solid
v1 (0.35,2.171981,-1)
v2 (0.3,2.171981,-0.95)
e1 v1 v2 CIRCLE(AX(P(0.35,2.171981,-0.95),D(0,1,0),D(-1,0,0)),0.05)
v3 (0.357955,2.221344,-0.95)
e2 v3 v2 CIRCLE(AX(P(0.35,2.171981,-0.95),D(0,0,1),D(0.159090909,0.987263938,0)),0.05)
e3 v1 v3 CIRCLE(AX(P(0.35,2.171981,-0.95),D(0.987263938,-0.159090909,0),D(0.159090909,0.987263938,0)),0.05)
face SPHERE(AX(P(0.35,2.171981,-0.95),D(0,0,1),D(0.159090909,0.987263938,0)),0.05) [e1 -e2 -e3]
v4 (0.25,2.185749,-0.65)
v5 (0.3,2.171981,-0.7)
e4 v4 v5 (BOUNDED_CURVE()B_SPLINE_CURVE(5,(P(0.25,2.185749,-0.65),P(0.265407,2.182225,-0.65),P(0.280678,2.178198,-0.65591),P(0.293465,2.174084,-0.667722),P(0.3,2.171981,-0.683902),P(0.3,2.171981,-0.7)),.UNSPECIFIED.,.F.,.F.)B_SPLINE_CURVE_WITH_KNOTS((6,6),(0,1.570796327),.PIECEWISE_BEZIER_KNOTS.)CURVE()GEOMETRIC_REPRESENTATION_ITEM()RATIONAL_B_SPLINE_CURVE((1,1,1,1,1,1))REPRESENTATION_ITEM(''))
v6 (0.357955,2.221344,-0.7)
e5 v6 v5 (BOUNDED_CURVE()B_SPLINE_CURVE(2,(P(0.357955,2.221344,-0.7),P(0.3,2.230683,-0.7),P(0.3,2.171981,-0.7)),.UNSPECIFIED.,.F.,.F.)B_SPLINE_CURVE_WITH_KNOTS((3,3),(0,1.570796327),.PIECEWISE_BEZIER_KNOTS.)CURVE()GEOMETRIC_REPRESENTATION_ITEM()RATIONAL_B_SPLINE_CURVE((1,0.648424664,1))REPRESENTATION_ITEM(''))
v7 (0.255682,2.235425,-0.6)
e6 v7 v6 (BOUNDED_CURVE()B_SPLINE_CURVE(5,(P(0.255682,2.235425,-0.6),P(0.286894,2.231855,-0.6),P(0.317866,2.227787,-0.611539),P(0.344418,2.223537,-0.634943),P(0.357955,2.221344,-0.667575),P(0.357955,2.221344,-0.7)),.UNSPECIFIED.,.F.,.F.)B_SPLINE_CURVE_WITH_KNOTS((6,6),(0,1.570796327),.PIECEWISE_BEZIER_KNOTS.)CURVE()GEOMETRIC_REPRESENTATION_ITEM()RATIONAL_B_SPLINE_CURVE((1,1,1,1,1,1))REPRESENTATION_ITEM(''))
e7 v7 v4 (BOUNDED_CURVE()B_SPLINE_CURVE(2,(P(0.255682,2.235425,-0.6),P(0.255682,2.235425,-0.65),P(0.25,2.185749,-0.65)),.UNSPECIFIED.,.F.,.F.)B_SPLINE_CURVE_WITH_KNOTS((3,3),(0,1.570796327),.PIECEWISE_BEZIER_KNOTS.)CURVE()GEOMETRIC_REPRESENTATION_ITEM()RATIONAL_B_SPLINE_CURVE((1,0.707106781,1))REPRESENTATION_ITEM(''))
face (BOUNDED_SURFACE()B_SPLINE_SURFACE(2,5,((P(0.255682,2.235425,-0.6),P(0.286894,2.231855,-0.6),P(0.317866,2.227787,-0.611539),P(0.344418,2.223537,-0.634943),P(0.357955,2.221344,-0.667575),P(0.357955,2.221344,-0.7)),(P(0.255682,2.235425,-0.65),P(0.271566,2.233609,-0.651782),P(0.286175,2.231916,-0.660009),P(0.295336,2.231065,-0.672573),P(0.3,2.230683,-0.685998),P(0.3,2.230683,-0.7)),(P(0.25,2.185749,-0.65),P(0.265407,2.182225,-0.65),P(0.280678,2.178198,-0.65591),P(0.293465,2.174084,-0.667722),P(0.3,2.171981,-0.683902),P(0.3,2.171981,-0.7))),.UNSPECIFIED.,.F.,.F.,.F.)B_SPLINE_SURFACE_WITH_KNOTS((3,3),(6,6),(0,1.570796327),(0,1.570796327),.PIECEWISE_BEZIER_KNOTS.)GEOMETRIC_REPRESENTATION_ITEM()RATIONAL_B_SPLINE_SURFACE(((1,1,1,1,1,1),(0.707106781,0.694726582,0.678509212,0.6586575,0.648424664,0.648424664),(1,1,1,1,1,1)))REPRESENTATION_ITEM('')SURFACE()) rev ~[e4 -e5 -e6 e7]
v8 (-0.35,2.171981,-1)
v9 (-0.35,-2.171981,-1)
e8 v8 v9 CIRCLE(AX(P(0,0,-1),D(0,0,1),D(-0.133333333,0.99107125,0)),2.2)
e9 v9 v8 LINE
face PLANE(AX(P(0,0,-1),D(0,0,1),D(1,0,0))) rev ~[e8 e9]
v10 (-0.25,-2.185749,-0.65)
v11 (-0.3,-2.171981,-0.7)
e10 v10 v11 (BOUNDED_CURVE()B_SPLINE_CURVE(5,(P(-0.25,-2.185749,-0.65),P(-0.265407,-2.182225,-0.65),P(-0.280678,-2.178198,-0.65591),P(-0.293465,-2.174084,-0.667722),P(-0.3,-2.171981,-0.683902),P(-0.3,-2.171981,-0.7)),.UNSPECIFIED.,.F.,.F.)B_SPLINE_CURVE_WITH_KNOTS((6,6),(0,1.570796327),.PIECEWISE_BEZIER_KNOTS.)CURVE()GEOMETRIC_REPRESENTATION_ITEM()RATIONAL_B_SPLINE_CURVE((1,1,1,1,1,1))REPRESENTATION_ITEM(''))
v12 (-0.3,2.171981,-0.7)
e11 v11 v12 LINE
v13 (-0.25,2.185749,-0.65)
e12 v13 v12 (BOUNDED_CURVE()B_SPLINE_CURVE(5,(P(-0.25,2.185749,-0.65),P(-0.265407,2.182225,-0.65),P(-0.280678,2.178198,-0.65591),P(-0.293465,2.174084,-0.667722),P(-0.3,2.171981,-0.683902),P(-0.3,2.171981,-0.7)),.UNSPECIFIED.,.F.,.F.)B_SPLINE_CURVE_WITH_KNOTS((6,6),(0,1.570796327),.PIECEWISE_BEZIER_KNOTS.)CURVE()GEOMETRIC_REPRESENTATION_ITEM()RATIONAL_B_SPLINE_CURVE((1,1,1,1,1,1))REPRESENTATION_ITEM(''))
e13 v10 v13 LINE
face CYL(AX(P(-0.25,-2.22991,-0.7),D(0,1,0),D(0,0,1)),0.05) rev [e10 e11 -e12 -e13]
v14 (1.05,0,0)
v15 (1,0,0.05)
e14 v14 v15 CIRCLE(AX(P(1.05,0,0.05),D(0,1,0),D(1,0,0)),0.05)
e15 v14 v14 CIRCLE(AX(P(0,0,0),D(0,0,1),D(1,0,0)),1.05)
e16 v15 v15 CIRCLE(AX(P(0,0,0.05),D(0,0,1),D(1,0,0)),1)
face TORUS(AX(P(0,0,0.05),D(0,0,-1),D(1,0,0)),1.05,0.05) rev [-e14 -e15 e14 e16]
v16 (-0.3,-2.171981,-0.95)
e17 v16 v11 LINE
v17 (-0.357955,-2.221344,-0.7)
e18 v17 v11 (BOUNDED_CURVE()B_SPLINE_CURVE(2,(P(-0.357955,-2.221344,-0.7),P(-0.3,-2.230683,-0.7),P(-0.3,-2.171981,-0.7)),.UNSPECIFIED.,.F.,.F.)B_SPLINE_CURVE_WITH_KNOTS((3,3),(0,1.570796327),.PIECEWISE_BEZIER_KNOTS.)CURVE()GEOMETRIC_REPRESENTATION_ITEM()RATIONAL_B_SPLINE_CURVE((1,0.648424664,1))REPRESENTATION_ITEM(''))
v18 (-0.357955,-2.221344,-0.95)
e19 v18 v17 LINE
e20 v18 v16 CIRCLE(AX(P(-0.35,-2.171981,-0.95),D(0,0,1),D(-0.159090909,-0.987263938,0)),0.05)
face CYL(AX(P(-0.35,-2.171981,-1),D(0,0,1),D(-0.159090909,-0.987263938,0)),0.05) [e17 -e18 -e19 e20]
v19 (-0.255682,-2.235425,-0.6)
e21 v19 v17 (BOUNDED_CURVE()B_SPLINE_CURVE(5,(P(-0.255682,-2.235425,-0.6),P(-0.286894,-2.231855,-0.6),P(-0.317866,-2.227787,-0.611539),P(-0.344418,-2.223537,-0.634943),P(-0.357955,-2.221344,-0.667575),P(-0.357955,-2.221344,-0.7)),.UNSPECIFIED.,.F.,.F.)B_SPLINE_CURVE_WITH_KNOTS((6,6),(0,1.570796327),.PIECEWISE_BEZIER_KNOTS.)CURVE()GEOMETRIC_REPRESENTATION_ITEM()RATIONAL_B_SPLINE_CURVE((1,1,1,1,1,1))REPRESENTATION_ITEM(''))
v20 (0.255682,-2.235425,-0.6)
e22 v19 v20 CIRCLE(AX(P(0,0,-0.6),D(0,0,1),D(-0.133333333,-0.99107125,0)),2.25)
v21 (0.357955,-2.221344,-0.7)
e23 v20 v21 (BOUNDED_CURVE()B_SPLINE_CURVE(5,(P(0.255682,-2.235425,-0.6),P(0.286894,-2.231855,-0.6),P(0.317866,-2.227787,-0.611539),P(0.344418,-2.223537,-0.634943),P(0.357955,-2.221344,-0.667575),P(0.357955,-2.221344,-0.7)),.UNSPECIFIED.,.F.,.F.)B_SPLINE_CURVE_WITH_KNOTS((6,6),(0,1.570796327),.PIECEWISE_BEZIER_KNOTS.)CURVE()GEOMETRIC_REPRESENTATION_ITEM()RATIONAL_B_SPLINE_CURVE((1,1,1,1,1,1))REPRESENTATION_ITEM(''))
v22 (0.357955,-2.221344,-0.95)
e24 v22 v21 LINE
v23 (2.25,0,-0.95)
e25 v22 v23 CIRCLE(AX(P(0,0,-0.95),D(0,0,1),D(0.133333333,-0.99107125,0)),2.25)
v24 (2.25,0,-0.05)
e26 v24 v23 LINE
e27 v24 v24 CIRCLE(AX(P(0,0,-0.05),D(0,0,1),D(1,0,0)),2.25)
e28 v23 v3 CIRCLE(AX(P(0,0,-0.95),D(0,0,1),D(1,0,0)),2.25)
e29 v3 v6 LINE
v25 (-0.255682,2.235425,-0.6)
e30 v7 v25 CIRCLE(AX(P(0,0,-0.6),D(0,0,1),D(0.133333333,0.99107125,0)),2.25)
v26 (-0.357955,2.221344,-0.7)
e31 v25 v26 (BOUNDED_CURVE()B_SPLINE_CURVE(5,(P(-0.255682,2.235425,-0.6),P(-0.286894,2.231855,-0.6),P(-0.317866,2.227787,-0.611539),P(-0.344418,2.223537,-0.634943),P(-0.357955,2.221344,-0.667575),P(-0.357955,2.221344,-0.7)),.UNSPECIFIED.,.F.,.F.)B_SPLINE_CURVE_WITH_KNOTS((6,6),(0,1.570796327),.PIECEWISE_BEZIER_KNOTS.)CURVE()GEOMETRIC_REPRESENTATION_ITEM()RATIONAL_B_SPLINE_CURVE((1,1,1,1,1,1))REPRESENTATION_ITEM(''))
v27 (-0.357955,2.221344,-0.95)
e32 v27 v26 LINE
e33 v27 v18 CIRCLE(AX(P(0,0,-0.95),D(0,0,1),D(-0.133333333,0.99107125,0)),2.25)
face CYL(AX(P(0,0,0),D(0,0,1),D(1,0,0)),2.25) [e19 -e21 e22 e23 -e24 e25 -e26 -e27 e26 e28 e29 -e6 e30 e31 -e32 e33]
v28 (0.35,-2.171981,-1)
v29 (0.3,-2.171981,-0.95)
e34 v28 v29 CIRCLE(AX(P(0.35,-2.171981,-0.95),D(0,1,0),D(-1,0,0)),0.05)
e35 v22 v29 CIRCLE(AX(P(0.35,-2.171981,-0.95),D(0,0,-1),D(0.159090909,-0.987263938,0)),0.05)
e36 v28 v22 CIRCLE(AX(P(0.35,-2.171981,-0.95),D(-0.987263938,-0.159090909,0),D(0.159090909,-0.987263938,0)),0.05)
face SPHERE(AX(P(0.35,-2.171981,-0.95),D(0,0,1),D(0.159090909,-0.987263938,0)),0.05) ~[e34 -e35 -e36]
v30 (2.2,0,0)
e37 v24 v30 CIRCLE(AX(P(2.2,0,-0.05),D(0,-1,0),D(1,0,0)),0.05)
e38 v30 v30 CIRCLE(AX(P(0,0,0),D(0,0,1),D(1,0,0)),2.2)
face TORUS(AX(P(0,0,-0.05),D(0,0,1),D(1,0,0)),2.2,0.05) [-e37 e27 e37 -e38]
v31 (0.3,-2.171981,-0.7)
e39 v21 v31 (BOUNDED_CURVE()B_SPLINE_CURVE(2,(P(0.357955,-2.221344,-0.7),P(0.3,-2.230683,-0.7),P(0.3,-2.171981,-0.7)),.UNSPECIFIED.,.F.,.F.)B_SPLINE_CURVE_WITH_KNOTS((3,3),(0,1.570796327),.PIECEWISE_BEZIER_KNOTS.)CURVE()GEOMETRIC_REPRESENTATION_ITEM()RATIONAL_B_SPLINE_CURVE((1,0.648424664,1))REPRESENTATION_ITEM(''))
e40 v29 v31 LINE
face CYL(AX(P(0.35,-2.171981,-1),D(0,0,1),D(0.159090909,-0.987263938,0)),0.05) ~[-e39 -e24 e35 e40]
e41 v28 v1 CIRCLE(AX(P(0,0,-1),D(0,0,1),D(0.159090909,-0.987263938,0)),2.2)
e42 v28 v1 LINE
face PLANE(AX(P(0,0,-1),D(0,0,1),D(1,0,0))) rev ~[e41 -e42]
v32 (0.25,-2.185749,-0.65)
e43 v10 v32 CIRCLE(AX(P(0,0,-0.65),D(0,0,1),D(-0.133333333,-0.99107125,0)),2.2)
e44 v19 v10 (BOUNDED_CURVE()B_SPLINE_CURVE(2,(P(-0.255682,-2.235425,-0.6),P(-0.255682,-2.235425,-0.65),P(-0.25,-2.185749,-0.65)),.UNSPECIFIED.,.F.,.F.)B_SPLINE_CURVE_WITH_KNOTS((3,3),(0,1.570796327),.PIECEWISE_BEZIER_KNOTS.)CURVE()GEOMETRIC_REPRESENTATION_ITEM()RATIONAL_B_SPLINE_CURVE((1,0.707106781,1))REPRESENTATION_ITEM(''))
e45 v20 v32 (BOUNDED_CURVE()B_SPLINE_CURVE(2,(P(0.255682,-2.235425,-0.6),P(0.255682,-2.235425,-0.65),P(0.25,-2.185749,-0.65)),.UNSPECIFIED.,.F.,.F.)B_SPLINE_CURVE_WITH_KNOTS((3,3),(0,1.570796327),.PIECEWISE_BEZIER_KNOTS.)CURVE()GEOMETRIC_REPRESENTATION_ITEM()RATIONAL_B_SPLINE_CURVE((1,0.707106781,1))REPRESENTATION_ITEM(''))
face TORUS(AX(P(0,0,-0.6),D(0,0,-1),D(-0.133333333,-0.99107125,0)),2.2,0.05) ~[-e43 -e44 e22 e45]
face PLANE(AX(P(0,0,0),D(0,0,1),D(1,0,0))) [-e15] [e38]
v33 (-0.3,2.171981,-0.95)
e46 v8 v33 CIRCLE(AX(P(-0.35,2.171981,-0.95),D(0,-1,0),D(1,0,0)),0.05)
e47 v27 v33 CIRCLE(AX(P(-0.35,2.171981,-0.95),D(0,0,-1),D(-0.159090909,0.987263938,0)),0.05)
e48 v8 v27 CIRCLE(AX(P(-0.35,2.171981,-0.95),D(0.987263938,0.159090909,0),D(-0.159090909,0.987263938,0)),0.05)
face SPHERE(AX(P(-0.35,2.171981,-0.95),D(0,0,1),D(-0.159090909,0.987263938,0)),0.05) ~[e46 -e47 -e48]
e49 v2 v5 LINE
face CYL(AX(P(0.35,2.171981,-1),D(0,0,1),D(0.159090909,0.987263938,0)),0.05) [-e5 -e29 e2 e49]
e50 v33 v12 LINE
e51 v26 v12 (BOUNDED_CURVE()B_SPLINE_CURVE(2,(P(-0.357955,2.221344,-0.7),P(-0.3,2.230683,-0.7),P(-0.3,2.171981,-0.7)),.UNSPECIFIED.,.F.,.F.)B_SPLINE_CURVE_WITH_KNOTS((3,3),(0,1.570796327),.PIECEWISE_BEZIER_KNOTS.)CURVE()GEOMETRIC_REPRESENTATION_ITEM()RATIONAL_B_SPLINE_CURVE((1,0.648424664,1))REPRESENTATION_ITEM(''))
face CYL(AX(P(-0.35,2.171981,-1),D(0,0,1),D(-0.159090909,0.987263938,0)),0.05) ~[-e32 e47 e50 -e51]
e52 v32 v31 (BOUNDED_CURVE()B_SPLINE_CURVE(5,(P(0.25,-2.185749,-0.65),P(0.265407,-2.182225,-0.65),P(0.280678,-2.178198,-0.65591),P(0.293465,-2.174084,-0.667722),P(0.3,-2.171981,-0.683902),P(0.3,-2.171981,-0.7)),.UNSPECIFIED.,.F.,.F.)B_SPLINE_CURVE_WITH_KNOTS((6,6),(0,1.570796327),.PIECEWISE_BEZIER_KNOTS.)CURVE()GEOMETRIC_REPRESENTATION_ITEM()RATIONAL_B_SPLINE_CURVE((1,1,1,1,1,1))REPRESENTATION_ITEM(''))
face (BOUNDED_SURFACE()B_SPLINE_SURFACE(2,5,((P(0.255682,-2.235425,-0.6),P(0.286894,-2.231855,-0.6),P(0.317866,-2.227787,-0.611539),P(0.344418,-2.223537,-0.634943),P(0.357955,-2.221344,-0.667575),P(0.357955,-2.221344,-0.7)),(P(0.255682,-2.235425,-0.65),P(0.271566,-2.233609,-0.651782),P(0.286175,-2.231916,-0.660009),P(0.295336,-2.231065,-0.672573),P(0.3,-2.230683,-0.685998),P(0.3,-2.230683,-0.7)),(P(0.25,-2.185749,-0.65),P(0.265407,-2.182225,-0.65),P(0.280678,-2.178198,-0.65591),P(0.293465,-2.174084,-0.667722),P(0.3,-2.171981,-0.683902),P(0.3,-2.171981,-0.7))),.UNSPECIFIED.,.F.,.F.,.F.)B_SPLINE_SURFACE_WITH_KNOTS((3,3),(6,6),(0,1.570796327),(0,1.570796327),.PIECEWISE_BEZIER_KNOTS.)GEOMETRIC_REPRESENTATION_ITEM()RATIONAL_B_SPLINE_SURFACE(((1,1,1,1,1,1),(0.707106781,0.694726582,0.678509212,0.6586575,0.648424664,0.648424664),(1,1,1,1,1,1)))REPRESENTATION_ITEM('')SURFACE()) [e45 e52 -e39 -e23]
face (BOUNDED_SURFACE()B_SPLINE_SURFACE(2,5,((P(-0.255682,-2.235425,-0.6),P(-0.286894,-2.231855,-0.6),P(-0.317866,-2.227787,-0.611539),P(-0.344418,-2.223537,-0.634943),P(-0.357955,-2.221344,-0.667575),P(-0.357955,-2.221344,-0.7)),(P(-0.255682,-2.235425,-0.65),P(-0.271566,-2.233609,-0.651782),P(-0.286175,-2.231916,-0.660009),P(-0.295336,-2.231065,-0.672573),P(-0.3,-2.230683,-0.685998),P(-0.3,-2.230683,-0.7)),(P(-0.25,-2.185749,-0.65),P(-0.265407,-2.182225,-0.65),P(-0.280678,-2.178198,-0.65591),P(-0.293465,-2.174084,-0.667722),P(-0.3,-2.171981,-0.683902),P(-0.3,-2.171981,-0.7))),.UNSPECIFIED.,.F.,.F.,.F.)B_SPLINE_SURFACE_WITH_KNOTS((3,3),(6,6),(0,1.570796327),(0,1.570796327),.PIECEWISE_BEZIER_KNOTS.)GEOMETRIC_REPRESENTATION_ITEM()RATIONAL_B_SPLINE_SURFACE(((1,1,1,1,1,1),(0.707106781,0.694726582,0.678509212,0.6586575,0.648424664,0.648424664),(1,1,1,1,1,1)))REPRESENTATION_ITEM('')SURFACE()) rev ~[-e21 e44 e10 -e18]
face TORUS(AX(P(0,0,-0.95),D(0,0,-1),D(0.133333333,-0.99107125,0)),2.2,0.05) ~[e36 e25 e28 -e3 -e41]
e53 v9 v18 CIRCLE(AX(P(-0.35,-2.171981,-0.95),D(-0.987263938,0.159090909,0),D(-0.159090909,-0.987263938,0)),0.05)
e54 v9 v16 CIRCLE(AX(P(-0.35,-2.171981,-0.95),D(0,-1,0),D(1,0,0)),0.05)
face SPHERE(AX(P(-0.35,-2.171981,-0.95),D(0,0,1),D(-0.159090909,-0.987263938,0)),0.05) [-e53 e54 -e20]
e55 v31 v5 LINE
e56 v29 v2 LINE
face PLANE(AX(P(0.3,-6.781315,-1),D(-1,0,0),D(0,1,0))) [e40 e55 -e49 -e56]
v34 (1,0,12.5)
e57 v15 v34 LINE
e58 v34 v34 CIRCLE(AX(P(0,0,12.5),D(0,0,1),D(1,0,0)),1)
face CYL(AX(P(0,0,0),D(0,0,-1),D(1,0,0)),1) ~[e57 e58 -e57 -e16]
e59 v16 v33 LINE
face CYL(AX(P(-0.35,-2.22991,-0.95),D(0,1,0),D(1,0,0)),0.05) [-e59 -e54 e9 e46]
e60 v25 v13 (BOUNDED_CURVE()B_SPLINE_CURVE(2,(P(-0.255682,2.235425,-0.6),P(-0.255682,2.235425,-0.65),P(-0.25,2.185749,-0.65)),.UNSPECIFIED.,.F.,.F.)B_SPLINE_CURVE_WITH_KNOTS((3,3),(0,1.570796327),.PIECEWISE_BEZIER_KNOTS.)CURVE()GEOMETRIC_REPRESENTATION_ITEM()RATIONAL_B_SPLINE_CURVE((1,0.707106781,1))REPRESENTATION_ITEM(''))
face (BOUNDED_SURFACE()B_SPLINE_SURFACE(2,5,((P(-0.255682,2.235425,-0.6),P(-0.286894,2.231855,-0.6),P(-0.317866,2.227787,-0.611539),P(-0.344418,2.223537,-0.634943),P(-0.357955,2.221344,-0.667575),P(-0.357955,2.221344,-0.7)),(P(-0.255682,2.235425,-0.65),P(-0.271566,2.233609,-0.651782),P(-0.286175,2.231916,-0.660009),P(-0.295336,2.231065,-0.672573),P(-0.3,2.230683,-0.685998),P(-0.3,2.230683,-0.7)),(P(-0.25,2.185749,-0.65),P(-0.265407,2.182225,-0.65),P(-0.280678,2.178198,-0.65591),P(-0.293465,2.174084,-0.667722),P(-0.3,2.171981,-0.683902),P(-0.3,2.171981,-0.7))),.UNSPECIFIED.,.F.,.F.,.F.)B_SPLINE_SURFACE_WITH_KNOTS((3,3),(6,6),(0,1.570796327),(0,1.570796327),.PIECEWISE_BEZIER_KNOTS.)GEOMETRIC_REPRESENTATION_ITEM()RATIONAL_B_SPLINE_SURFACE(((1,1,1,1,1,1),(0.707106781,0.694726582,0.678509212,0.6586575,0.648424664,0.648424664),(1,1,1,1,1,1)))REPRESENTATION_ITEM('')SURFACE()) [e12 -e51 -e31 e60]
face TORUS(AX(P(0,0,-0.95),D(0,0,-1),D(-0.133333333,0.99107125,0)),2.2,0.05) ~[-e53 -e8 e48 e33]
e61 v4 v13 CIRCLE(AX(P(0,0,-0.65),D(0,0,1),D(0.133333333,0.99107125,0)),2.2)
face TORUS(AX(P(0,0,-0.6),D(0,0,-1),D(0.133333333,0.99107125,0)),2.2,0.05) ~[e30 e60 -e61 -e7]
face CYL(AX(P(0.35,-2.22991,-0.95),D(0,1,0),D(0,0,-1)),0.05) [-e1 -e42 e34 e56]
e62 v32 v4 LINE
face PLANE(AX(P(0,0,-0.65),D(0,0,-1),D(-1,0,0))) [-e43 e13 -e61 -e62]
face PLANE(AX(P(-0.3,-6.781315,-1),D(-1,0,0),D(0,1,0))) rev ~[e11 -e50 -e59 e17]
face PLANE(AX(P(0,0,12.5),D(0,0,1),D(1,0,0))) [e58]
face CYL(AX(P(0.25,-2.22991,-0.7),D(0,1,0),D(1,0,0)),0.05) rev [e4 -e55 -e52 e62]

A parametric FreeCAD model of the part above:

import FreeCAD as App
import Part
import Sketcher

V = App.Vector
Q = App.Units.Quantity


def edges_at(feature, points):
    """Names of the edges that pass closest to the given points."""
    edges = feature.Shape.Edges
    near = lambda p: min(range(len(edges)), key=lambda i: edges[i].distToShape(Part.Vertex(*p))[0])
    return sorted({f"Edge{near(p) + 1}" for p in points})

doc = App.newDocument("Part")
body = doc.addObject("PartDesign::Body", "Body")

# Sketch on XY plane
sketch1 = body.newObject("Sketcher::SketchObject", "Sketch")
sketch1.AttachmentSupport = (doc.getObject("XY_Plane"), [""])
sketch1.MapMode = "FlatFace"
sketch1.addGeometry(Part.Circle(V(0, 0, 0), V(0, 0, 1), 1), False)
sketch1.addConstraint(Sketcher.Constraint("Coincident", 0, 3, -1, 1))
sketch1.addConstraint(Sketcher.Constraint("Diameter", 0, Q("2 mm")))
pad1 = body.newObject("PartDesign::Pad", "Pad")
pad1.Profile = sketch1
pad1.Length = 12.5

# Sketch on XY plane
sketch2 = body.newObject("Sketcher::SketchObject", "Sketch001")
sketch2.AttachmentSupport = (doc.getObject("XY_Plane"), [""])
sketch2.MapMode = "FlatFace"
sketch2.addGeometry(Part.Circle(V(0, 0, 0), V(0, 0, 1), 2.2), False)
sketch2.addConstraint(Sketcher.Constraint("Coincident", 0, 3, -1, 1))
sketch2.addConstraint(Sketcher.Constraint("Diameter", 0, Q("4.5 mm")))
pad2 = body.newObject("PartDesign::Pad", "Pad001")
pad2.Profile = sketch2
pad2.Length = 1
pad2.Reversed = True

# Sketch on XY plane
sketch3 = body.newObject("Sketcher::SketchObject", "Sketch002")
sketch3.AttachmentSupport = (doc.getObject("XY_Plane"), [""])
sketch3.MapMode = "FlatFace"
sketch3.AttachmentOffset = App.Placement(V(0, 0, -1), App.Rotation())
sketch3.addGeometry(Part.LineSegment(V(0.3, 6.8, 0), V(0.3, -6.8, 0)), False)
sketch3.addGeometry(Part.LineSegment(V(0.3, -6.8, 0), V(-0.3, -6.8, 0)), False)
sketch3.addGeometry(Part.LineSegment(V(-0.3, -6.8, 0), V(-0.3, 6.8, 0)), False)
sketch3.addGeometry(Part.LineSegment(V(-0.3, 6.8, 0), V(0.3, 6.8, 0)), False)
sketch3.addConstraint(Sketcher.Constraint("Coincident", 0, 2, 1, 1))
sketch3.addConstraint(Sketcher.Constraint("Coincident", 1, 2, 2, 1))
sketch3.addConstraint(Sketcher.Constraint("Coincident", 2, 2, 3, 1))
sketch3.addConstraint(Sketcher.Constraint("Coincident", 3, 2, 0, 1))
sketch3.addConstraint(Sketcher.Constraint("Vertical", 0))
sketch3.addConstraint(Sketcher.Constraint("Horizontal", 1))
sketch3.addConstraint(Sketcher.Constraint("Vertical", 2))
sketch3.addConstraint(Sketcher.Constraint("Horizontal", 3))
sketch3.addConstraint(Sketcher.Constraint("Symmetric", 0, 2, 2, 2, -1, 1))
sketch3.addConstraint(Sketcher.Constraint("DistanceX", 1, 2, 1, 1, Q("0.6 mm")))
sketch3.addConstraint(Sketcher.Constraint("DistanceY", 0, 2, 0, 1, Q("13.56263 mm")))
pocket1 = body.newObject("PartDesign::Pocket", "Pocket")
pocket1.Profile = sketch3
pocket1.Length = 0.35
pocket1.Reversed = True
doc.recompute()

fillet = body.newObject("PartDesign::Fillet", "Fillet")
fillet.Base = (pocket1, edges_at(pocket1, [
    (1.694, 1.481, -1),
    (-0.3, 0, -1),
    (0.3, 0, -1),
    (0, 2.25, -0.65),
    (0, -2.25, -0.65),
    (0.3, 2.23, -0.825),
    (0.3, -2.23, -0.825),
    (-0.3, -2.23, -0.825),
    (-0.3, 2.23, -0.825),
    (0.3, 0, -0.65),
    (-0.3, 0, -0.65),
    (-2.25, 0, -1),
]))
fillet.Radius = 0.05
doc.recompute()

fillet2 = body.newObject("PartDesign::Fillet", "Fillet001")
fillet2.Base = (fillet, edges_at(fillet, [(-1, 0, 0), (-2.25, 0, 0)]))
fillet2.Radius = 0.05

doc.recompute()
